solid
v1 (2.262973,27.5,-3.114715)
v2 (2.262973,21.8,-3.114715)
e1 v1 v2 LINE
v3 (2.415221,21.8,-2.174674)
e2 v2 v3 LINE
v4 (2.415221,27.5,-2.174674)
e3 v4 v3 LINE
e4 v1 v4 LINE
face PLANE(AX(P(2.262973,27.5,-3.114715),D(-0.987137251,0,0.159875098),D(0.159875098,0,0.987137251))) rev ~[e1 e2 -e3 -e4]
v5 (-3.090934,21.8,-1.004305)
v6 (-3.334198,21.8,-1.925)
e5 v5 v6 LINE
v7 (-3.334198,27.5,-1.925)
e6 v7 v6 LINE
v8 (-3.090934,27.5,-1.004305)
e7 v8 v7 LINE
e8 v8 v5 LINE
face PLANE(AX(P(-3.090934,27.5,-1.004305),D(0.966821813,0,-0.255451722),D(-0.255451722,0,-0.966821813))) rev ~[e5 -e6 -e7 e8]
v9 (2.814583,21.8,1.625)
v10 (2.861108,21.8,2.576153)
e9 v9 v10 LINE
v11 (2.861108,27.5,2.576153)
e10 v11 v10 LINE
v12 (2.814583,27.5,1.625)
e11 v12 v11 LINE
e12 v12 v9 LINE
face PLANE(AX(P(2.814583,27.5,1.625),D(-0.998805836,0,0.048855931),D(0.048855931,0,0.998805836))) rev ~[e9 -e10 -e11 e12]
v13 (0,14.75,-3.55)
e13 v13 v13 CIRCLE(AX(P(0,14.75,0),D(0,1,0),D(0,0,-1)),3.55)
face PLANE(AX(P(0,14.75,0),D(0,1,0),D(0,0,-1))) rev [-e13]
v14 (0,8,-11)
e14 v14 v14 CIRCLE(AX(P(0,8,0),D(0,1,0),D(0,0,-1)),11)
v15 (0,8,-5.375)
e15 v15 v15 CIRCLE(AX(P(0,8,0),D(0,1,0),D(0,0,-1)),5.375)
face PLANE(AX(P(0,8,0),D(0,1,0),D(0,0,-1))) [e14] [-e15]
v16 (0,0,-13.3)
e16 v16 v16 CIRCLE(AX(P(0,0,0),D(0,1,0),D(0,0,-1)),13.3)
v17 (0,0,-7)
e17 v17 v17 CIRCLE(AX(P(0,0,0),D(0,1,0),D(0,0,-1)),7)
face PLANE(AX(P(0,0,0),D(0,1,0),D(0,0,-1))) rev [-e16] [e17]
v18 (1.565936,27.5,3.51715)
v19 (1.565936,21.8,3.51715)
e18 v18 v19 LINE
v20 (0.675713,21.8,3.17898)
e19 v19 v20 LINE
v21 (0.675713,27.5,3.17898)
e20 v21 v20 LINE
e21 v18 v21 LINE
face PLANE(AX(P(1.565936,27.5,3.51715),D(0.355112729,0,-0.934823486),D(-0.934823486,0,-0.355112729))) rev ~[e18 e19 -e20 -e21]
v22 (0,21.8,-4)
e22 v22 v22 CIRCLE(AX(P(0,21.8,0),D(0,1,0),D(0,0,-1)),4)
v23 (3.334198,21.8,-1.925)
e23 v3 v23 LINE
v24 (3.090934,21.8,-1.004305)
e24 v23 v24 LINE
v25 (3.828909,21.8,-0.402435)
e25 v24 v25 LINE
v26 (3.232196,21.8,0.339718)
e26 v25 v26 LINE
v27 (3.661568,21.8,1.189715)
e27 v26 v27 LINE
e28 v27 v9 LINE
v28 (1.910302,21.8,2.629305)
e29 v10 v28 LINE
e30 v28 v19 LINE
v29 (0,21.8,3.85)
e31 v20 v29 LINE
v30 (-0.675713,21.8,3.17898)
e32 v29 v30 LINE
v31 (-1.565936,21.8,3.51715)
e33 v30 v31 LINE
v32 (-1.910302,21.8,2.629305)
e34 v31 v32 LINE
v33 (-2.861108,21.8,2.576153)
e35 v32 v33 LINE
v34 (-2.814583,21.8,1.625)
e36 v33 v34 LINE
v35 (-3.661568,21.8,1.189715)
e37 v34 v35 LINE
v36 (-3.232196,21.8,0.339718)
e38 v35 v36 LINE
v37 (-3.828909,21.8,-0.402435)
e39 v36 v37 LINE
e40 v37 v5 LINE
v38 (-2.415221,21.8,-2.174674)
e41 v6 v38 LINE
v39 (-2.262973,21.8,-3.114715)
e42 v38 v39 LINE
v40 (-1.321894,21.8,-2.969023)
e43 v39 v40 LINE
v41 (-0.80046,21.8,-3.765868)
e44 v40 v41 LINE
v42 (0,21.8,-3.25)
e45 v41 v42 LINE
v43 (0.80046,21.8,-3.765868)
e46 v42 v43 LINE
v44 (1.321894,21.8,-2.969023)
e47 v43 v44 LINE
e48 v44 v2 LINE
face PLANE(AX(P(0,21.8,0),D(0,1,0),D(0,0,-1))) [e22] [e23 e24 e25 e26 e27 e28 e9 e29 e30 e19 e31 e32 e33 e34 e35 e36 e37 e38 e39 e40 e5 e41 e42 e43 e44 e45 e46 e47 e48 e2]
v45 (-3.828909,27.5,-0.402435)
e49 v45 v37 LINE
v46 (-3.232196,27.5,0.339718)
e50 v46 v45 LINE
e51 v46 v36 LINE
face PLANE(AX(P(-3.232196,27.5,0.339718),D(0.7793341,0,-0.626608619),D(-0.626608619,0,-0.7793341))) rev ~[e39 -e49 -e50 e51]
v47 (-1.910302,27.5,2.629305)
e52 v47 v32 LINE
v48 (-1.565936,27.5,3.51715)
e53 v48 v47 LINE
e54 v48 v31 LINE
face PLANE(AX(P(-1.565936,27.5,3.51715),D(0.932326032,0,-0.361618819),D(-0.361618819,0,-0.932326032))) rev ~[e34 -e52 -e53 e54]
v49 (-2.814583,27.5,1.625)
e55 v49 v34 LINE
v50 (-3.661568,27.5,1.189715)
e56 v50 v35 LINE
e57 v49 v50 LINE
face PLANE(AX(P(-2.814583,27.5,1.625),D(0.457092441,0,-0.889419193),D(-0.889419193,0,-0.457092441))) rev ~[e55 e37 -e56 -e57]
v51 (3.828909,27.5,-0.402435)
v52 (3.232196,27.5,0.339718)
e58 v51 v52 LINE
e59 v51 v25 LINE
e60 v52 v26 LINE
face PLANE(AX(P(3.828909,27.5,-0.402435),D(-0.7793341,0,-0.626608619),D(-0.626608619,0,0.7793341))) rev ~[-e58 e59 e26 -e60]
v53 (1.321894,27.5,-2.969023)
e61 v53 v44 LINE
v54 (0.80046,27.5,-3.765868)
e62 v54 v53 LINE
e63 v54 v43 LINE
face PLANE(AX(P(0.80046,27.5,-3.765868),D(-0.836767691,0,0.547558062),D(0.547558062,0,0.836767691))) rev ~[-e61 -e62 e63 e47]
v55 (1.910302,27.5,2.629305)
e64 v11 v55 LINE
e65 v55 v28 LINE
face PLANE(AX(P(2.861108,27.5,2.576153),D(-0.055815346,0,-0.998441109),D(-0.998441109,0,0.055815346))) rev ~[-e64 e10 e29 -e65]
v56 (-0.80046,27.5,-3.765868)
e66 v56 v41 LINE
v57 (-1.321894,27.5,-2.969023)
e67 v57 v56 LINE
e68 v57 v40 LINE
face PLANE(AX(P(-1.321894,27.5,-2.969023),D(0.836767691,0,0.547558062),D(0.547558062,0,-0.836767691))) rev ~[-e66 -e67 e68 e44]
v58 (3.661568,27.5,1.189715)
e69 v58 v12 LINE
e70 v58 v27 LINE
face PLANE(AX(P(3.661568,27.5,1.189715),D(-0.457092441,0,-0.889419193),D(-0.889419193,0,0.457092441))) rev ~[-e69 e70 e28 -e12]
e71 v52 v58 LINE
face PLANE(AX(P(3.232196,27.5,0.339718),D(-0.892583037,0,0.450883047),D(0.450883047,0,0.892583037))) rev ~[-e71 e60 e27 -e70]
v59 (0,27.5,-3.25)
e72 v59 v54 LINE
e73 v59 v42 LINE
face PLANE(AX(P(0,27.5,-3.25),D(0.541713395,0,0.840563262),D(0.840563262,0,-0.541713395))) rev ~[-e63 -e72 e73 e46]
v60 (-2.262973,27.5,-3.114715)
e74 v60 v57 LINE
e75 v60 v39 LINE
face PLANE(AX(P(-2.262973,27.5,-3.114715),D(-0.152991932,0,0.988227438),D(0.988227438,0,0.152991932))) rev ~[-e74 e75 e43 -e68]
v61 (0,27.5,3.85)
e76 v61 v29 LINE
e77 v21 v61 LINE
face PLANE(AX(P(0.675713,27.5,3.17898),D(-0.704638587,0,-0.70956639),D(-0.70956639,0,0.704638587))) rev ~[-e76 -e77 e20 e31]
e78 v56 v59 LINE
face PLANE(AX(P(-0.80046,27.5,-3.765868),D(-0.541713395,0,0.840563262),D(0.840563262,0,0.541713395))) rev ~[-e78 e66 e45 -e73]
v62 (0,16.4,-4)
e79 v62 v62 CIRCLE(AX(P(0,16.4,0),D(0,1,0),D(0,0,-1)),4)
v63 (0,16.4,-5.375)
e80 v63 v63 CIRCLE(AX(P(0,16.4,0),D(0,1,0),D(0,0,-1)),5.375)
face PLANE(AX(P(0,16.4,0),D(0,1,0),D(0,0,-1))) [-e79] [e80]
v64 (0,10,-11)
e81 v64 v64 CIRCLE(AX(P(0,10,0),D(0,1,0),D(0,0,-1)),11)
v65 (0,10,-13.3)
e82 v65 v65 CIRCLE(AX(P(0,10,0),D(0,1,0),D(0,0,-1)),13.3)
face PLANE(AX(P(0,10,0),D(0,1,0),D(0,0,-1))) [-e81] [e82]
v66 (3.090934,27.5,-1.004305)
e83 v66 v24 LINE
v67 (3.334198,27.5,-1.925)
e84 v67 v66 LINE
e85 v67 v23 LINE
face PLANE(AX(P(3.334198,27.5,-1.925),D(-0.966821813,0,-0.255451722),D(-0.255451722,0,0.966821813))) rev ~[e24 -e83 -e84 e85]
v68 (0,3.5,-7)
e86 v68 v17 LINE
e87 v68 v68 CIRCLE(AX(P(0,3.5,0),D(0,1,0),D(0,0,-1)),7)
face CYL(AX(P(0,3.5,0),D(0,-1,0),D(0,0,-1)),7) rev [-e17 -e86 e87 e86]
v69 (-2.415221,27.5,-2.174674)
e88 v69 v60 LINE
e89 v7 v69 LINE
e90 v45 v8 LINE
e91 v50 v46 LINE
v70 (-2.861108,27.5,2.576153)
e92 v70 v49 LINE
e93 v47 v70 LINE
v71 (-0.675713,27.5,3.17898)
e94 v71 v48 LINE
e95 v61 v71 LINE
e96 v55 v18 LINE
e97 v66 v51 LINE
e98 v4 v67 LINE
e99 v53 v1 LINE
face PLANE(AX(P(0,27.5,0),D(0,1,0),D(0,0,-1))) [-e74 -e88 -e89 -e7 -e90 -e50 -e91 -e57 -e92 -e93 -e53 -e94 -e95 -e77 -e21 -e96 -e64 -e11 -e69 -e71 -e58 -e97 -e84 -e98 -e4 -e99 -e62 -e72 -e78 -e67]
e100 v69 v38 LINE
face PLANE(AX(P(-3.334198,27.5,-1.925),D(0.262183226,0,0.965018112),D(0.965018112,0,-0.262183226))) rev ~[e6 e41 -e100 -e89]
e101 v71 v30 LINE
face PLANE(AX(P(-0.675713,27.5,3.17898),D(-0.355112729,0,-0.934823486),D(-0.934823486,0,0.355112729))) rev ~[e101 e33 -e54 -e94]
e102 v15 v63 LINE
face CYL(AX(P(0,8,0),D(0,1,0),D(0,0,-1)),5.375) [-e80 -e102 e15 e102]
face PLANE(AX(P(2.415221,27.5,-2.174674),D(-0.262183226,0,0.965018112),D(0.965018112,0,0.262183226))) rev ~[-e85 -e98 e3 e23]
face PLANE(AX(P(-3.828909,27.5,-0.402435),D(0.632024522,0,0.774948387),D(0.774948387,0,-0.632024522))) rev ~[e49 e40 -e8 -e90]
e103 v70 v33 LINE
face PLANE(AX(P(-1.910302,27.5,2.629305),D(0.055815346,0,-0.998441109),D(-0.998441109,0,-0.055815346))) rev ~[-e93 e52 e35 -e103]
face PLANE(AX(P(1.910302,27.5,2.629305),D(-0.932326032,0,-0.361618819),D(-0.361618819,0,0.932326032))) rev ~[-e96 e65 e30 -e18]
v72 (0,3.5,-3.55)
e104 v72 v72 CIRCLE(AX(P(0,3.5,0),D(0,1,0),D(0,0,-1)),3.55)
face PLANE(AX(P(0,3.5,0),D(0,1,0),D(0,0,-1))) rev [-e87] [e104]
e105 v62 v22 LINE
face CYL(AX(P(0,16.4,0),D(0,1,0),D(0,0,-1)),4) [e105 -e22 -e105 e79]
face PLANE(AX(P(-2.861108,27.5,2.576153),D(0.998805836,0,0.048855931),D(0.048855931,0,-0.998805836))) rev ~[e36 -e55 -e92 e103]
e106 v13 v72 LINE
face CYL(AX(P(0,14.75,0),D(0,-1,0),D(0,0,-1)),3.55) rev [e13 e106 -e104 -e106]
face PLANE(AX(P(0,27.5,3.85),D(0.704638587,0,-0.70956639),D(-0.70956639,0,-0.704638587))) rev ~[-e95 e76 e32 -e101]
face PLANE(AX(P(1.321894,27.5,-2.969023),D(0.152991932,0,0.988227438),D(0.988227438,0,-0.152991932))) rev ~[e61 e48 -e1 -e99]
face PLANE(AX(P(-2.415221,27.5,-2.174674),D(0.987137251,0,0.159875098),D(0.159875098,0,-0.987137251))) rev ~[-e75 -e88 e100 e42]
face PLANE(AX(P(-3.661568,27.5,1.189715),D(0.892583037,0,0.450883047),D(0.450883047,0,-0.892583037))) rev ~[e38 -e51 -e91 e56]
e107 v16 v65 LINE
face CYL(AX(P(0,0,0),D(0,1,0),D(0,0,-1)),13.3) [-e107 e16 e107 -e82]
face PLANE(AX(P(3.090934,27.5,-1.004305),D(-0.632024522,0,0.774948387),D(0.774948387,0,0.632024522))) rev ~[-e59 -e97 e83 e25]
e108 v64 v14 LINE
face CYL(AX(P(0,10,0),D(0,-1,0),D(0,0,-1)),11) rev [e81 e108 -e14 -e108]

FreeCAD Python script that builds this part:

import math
import FreeCAD as App
import Part
import Sketcher

V = App.Vector


def add_polygon(sketch, points):
    """Adds a closed chain of lines whose ends are joined by coincident constraints."""
    first, n = sketch.GeometryCount, len(points)
    for a, b in zip(points, points[1:] + points[:1]):
        sketch.addGeometry(Part.LineSegment(App.Vector(*a, 0), App.Vector(*b, 0)), False)
    for i in range(n):
        sketch.addConstraint(Sketcher.Constraint("Coincident", first + i, 2, first + (i + 1) % n, 1))

doc = App.newDocument("Part")
body = doc.addObject("PartDesign::Body", "Body")

# Sketch on XY plane
sketch1 = body.newObject("Sketcher::SketchObject", "Sketch")
sketch1.AttachmentSupport = (doc.getObject("XY_Plane"), [""])
sketch1.MapMode = "FlatFace"
add_polygon(sketch1, [(13.3, 0), (13.3, 10), (11, 10), (11, 8), (5.375, 8), (5.375, 16.4), (4, 16.4), (4, 21.8), (3.85, 21.8), (3.85, 27.5), (0, 27.5), (0, 14.75), (3.55, 14.75), (3.55, 3.5), (7, 3.5), (7, 0)])  # lines 0-15
sketch1.addConstraint(Sketcher.Constraint("Vertical", 0))
sketch1.addConstraint(Sketcher.Constraint("Horizontal", 1))
sketch1.addConstraint(Sketcher.Constraint("Vertical", 2))
sketch1.addConstraint(Sketcher.Constraint("Horizontal", 3))
sketch1.addConstraint(Sketcher.Constraint("Vertical", 4))
sketch1.addConstraint(Sketcher.Constraint("Horizontal", 5))
sketch1.addConstraint(Sketcher.Constraint("Vertical", 6))
sketch1.addConstraint(Sketcher.Constraint("Horizontal", 7))
sketch1.addConstraint(Sketcher.Constraint("Vertical", 8))
sketch1.addConstraint(Sketcher.Constraint("Horizontal", 9))
sketch1.addConstraint(Sketcher.Constraint("Vertical", 10))
sketch1.addConstraint(Sketcher.Constraint("Horizontal", 11))
sketch1.addConstraint(Sketcher.Constraint("Vertical", 12))
sketch1.addConstraint(Sketcher.Constraint("Horizontal", 13))
sketch1.addConstraint(Sketcher.Constraint("Vertical", 14))
sketch1.addConstraint(Sketcher.Constraint("Horizontal", 15))
sketch1.addConstraint(Sketcher.Constraint("PointOnObject", 9, 2, -2))
sketch1.addConstraint(Sketcher.Constraint("PointOnObject", 14, 2, -1))
sketch1.addConstraint(Sketcher.Constraint("DistanceY", 0, 1, 0, 2, 10.0))
sketch1.addConstraint(Sketcher.Constraint("DistanceY", 2, 2, 2, 1, 2.0))
sketch1.addConstraint(Sketcher.Constraint("DistanceX", 1, 2, 1, 1, 2.3))
sketch1.addConstraint(Sketcher.Constraint("DistanceX", 15, 1, 15, 2, 6.3))
sketch1.addConstraint(Sketcher.Constraint("DistanceY", 4, 1, 4, 2, 8.4))
sketch1.addConstraint(Sketcher.Constraint("DistanceY", 6, 1, 6, 2, 5.4))
sketch1.addConstraint(Sketcher.Constraint("DistanceY", 8, 1, 8, 2, 5.7))
sketch1.addConstraint(Sketcher.Constraint("DistanceY", 14, 2, 14, 1, 3.5))
sketch1.addConstraint(Sketcher.Constraint("DistanceX", -1, 1, 1, 2, 11.0))
sketch1.addConstraint(Sketcher.Constraint("DistanceX", -1, 1, 5, 2, 4.0))
sketch1.addConstraint(Sketcher.Constraint("DistanceX", 7, 2, 7, 1, 0.15))
sketch1.addConstraint(Sketcher.Constraint("DistanceX", 11, 1, 11, 2, 3.55))
sketch1.addConstraint(Sketcher.Constraint("DistanceY", 10, 2, 10, 1, 12.75))
sketch1.addConstraint(Sketcher.Constraint("DistanceX", 3, 2, 3, 1, 5.625))
revolution = body.newObject("PartDesign::Revolution", "Revolution")
revolution.Profile = sketch1
revolution.ReferenceAxis = (sketch1, ["V_Axis"])
revolution.Angle = 360

# Sketch on XZ plane
sketch2 = body.newObject("Sketcher::SketchObject", "Sketch001")
sketch2.AttachmentSupport = (doc.getObject("XZ_Plane"), [""])
sketch2.MapMode = "FlatFace"
sketch2.AttachmentOffset = App.Placement(V(0, 0, -27.5), App.Rotation())
sketch2.addGeometry(Part.ArcOfCircle(Part.Circle(V(0, 0, 0), V(0, 0, 1), 3.85), math.radians(-102), math.radians(-78)), False)
sketch2.addGeometry(Part.LineSegment(V(-0.80046, -3.765868, 0), V(0, -3.25, 0)), False)
sketch2.addGeometry(Part.LineSegment(V(0, -3.25, 0), V(0.80046, -3.765868, 0)), False)
sketch2.addConstraint(Sketcher.Constraint("Coincident", 0, 1, 1, 1))
sketch2.addConstraint(Sketcher.Constraint("Coincident", 1, 2, 2, 1))
sketch2.addConstraint(Sketcher.Constraint("Coincident", 2, 2, 0, 2))
sketch2.addConstraint(Sketcher.Constraint("Coincident", 0, 3, -1, 1))
sketch2.addConstraint(Sketcher.Constraint("PointOnObject", 1, 2, -2))
sketch2.addConstraint(Sketcher.Constraint("Horizontal", 0, 1, 2, 2))
sketch2.addConstraint(Sketcher.Constraint("Radius", 0, 3.85))
sketch2.addConstraint(Sketcher.Constraint("DistanceY", 1, 2, -1, 1, 3.25))
sketch2.addConstraint(Sketcher.Constraint("Distance", 1, 0.95229))
pocket1 = body.newObject("PartDesign::Pocket", "Pocket")
pocket1.Profile = sketch2
pocket1.Length = 5.7
pocket1.Reversed = True
doc.recompute()

polarpattern = body.newObject("PartDesign::PolarPattern", "PolarPattern")
polarpattern.Originals = [pocket1]
polarpattern.Axis = (doc.getObject("Y_Axis"), [""])
polarpattern.Angle = 360
polarpattern.Occurrences = 15
body.Tip = polarpattern

doc.recompute()
